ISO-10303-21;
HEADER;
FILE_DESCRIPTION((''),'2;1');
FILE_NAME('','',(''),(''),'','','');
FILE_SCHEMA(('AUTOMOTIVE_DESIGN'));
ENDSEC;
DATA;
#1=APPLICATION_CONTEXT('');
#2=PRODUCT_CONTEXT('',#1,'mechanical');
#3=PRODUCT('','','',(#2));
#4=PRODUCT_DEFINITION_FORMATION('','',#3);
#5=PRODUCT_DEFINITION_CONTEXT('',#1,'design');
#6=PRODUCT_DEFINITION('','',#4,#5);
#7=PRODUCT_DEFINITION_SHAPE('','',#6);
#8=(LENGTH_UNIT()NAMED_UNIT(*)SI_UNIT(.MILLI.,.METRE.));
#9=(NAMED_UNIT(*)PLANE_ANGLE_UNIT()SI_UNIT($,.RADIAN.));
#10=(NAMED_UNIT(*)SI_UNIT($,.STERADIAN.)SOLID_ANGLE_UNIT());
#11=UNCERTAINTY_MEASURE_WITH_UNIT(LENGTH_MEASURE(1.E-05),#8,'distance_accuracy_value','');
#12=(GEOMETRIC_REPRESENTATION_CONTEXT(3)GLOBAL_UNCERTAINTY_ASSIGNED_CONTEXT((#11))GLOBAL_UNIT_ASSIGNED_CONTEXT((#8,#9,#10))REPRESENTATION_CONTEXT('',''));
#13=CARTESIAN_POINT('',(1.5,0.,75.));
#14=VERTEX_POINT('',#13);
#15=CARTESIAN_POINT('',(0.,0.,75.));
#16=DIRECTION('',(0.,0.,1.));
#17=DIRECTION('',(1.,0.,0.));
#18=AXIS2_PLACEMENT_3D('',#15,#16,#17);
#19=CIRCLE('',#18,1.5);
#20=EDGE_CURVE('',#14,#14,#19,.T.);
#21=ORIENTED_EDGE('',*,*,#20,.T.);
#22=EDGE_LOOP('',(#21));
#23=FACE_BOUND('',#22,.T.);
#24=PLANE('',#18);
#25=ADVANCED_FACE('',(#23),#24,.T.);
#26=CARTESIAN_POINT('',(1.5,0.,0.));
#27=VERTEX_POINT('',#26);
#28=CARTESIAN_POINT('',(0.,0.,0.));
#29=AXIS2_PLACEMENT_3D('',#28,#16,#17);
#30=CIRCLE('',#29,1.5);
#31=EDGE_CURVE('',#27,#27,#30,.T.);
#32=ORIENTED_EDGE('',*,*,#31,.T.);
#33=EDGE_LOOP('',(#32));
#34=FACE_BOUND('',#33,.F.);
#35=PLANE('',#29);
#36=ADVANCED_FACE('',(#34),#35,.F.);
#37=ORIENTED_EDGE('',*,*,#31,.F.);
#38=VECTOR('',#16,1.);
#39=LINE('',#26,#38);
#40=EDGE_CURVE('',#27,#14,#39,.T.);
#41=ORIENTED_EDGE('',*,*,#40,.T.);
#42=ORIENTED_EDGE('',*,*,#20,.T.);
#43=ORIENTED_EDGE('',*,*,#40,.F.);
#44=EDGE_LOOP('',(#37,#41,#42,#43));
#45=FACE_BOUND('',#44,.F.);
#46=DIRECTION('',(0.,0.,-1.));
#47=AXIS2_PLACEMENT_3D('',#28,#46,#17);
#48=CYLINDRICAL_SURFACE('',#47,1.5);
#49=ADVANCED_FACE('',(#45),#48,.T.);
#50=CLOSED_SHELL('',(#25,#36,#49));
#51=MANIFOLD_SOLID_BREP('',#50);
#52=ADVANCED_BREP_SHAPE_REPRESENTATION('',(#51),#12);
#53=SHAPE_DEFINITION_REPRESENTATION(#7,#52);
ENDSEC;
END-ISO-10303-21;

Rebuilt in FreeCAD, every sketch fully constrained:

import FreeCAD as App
import Part
import Sketcher
from FreeCAD import Vector
Q = App.Units.Quantity

doc = App.newDocument("Part")
body = doc.addObject("PartDesign::Body", "Body")

# Sketch on XY plane
sketch1 = body.newObject("Sketcher::SketchObject", "Sketch")
sketch1.AttachmentSupport = (doc.getObject("XY_Plane"), [""])
sketch1.MapMode = "FlatFace"
sketch1.addGeometry(Part.Circle(Vector(0, 0, 0), Vector(0, 0, 1), 1.5), False)
sketch1.addConstraint(Sketcher.Constraint("Coincident", 0, 3, -1, 1))
sketch1.addConstraint(Sketcher.Constraint("Diameter", 0, Q("3 mm")))
pad1 = body.newObject("PartDesign::Pad", "Pad")
pad1.Profile = sketch1
pad1.Length = 75

doc.recompute()
